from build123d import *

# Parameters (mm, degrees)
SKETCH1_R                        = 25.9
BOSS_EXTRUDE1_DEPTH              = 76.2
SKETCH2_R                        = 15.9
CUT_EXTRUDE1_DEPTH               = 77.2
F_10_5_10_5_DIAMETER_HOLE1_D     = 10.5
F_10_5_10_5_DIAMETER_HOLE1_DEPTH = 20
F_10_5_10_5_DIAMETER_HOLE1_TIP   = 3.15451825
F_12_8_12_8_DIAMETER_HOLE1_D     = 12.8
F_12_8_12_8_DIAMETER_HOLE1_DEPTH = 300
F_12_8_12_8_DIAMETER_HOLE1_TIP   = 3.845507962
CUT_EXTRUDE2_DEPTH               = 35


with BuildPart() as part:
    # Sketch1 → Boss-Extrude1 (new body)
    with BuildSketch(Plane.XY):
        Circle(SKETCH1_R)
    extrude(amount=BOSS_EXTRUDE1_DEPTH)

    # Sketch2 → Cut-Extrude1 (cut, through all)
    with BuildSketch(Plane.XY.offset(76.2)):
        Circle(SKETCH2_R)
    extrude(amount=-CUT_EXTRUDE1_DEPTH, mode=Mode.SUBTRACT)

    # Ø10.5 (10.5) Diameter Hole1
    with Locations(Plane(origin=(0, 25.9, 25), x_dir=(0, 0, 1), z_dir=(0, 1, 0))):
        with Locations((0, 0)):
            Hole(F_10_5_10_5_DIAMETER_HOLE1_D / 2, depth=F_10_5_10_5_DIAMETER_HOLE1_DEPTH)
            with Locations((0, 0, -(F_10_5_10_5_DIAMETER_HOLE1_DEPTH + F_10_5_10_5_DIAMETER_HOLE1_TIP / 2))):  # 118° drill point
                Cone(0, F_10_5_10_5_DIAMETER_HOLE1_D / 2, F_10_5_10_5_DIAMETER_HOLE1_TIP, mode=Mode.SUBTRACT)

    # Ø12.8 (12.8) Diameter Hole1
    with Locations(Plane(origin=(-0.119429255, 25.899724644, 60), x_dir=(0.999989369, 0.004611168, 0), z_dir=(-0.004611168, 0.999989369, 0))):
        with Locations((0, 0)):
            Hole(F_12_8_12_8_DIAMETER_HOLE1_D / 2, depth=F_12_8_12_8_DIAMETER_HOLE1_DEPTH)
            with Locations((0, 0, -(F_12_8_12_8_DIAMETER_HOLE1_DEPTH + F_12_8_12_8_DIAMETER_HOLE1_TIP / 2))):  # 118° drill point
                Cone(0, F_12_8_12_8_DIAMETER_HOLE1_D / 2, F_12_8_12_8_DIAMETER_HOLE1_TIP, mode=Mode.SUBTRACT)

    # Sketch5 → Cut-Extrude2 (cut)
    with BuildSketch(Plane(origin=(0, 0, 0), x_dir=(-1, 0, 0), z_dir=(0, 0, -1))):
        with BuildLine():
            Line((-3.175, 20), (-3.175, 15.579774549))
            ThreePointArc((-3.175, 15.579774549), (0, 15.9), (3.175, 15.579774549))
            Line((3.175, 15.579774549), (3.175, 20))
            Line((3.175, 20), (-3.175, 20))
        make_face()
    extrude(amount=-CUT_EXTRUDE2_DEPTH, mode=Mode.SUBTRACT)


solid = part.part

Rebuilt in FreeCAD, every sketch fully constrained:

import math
import FreeCAD as App
import Part
import Sketcher
Q = App.Units.Quantity

doc = App.newDocument("Part")
body = doc.addObject("PartDesign::Body", "Body")

sketch1 = body.newObject("Sketcher::SketchObject", "Sketch")
sketch1.AttachmentSupport = (doc.getObject("XY_Plane"), [""])
sketch1.MapMode = "FlatFace"
sketch1.addGeometry(Part.Circle(App.Vector(0, 0, 0), App.Vector(0, 0, 1), 26), False)
sketch1.addConstraint([
    Sketcher.Constraint("Coincident", 0, 3, -1, 1),
    Sketcher.Constraint("Diameter", 0, Q("51.8 mm")),
])
pad1 = body.newObject("PartDesign::Pad", "Pad")
pad1.Profile = sketch1
pad1.Length = 76.2

sketch2 = body.newObject("Sketcher::SketchObject", "Sketch001")
sketch2.AttachmentSupport = (doc.getObject("XY_Plane"), [""])
sketch2.MapMode = "FlatFace"
sketch2.AttachmentOffset = App.Placement(App.Vector(0, 0, 76.2), App.Rotation())
sketch2.addGeometry(Part.Circle(App.Vector(0, 0, 0), App.Vector(0, 0, 1), 16), False)
sketch2.addConstraint([
    Sketcher.Constraint("Coincident", 0, 3, -1, 1),
    Sketcher.Constraint("Diameter", 0, Q("31.8 mm")),
])
pocket1 = body.newObject("PartDesign::Pocket", "Pocket")
pocket1.Profile = sketch2
pocket1.Type = "ThroughAll"

sketch3 = body.newObject("Sketcher::SketchObject", "Sketch002")
sketch3.AttachmentSupport = (doc.getObject("XZ_Plane"), [""])
sketch3.MapMode = "FlatFace"
sketch3.AttachmentOffset = App.Placement(App.Vector(0, 0, -25.9), App.Rotation())
sketch3.addGeometry(Part.Circle(App.Vector(0, 25, 0), App.Vector(0, 0, 1), 5), False)
sketch3.addConstraint([
    Sketcher.Constraint("PointOnObject", 0, 3, -2),
    Sketcher.Constraint("Diameter", 0, Q("10.5 mm")),
    Sketcher.Constraint("DistanceY", -1, 1, 0, 3, Q("25 mm")),
])
doc.recompute()
hole = body.newObject("PartDesign::Hole", "Hole")
hole.Profile = sketch3
hole.ThreadType = "None"
hole.Diameter = 10.5
hole.DepthType = "Dimension"
hole.Depth = 20
hole.DrillPoint = "Angled"
hole.DrillPointAngle = 118
hole.Reversed = True

sketch4 = body.newObject("Sketcher::SketchObject", "Sketch003")
sketch4.Placement = App.Placement(App.Vector(-0.119429, 25.899725, 0), App.Rotation(App.Vector(0.999989369, 0.004611168, 0), App.Vector(0, 0, -1.000000001), App.Vector(-0.004611168, 0.999989369, 0), "ZXY"))
sketch4.addGeometry(Part.Circle(App.Vector(0, -60, 0), App.Vector(0, 0, 1), 6), False)
sketch4.addConstraint([
    Sketcher.Constraint("PointOnObject", 0, 3, -2),
    Sketcher.Constraint("Diameter", 0, Q("12.8 mm")),
    Sketcher.Constraint("DistanceY", 0, 3, -1, 1, Q("60 mm")),
])
doc.recompute()
hole2 = body.newObject("PartDesign::Hole", "Hole001")
hole2.Profile = sketch4
hole2.ThreadType = "None"
hole2.Diameter = 12.8
hole2.DepthType = "Dimension"
hole2.Depth = 300
hole2.DrillPoint = "Angled"
hole2.DrillPointAngle = 118

sketch5 = body.newObject("Sketcher::SketchObject", "Sketch004")
sketch5.AttachmentSupport = (doc.getObject("XY_Plane"), [""])
sketch5.MapMode = "FlatFace"
sketch5.addGeometry([
    Part.LineSegment(App.Vector(3.2, 20, 0), App.Vector(3.2, 15.6, 0)),
    Part.ArcOfCircle(Part.Circle(App.Vector(0, 0, 0), App.Vector(0, 0, 1), 15.9), math.radians(78), math.radians(102)),
    Part.LineSegment(App.Vector(-3.2, 15.6, 0), App.Vector(-3.2, 20, 0)),
    Part.LineSegment(App.Vector(-3.2, 20, 0), App.Vector(3.2, 20, 0)),
], False)
sketch5.addConstraint([
    Sketcher.Constraint("Coincident", 0, 2, 1, 1),
    Sketcher.Constraint("Coincident", 1, 2, 2, 1),
    Sketcher.Constraint("Coincident", 2, 2, 3, 1),
    Sketcher.Constraint("Coincident", 3, 2, 0, 1),
    Sketcher.Constraint("Vertical", 0),
    Sketcher.Constraint("Vertical", 2),
    Sketcher.Constraint("Horizontal", 3),
    Sketcher.Constraint("Coincident", 1, 3, -1, 1),
    Sketcher.Constraint("Horizontal", 0, 2, 1, 2),
    Sketcher.Constraint("Radius", 1, Q("15.9 mm")),
    Sketcher.Constraint("DistanceY", -1, 1, 2, 2, Q("20 mm")),
    Sketcher.Constraint("DistanceX", 3, 1, 3, 2, Q("6.35 mm")),
])
pocket2 = body.newObject("PartDesign::Pocket", "Pocket001")
pocket2.Profile = sketch5
pocket2.Length = 35
pocket2.Reversed = True

doc.recompute()
